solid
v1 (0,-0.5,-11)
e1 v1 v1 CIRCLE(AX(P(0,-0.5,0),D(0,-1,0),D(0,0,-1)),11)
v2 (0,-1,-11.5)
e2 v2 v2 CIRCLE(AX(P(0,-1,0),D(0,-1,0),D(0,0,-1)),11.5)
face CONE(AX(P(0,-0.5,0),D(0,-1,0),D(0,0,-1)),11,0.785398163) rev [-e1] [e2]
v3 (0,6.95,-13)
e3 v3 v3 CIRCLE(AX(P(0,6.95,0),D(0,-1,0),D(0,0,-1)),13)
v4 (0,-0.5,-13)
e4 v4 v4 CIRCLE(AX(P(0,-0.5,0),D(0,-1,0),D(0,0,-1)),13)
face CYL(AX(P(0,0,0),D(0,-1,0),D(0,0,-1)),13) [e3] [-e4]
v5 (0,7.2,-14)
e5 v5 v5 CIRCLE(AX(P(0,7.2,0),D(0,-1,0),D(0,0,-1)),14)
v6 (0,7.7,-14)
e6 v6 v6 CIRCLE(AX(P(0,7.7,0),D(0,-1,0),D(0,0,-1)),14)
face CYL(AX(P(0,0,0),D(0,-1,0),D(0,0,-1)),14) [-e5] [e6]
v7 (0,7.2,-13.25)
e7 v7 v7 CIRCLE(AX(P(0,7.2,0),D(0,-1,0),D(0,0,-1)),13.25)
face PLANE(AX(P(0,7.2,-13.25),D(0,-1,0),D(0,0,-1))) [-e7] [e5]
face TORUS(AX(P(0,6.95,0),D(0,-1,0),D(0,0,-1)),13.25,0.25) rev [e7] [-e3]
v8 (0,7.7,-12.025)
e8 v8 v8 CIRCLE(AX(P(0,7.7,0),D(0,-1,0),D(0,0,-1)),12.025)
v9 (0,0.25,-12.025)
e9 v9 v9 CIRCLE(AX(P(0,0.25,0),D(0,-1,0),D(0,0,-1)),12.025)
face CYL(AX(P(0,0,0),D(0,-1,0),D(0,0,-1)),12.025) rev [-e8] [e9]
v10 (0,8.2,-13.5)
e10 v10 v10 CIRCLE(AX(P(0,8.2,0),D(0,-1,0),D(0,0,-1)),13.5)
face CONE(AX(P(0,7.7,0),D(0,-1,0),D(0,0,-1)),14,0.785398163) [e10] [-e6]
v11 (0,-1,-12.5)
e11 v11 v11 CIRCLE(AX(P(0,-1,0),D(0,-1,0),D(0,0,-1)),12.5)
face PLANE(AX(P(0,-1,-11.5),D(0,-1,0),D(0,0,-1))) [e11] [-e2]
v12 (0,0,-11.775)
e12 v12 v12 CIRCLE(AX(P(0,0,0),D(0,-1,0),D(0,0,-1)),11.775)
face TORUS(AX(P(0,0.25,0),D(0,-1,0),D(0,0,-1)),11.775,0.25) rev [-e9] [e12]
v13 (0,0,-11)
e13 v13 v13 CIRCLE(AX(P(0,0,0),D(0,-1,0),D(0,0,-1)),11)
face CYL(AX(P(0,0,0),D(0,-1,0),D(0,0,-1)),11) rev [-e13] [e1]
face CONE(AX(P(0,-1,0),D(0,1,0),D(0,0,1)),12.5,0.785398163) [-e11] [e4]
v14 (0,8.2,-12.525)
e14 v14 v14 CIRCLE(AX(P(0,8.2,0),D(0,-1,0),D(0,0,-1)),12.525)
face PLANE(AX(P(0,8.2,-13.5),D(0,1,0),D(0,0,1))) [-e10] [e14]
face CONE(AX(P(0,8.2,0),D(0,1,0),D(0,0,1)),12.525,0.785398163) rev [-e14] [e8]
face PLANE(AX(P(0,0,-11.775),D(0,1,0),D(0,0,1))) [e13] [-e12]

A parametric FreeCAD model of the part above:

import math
import FreeCAD as App
import Part
import Sketcher
from FreeCAD import Vector
Q = App.Units.Quantity

doc = App.newDocument("Part")
params = doc.addObject("Spreadsheet::Sheet", "Params")
for row, (alias, value) in enumerate([
    ("sketch1_height", "1 mm"),
    ("sketch1_radius", "0.25 mm"),
    ("sketch1_width", "0.5 mm"),
    ("sketch1_width2", "7.45 mm"),
    ("revolution_angle", "360 deg"),
], start=1):
    params.set(f"A{row}", alias)
    params.set(f"B{row}", "=" + value)
    params.setAlias(f"B{row}", alias)

body = doc.addObject("PartDesign::Body", "Body")

sketch1 = body.newObject("Sketcher::SketchObject", "Sketch")
sketch1.AttachmentSupport = (doc.getObject("YZ_Plane"), [""])
sketch1.MapMode = "FlatFace"
sketch1.addGeometry([
    Part.LineSegment(Vector(0, -11, 0), Vector(-0.5, -11, 0)),
    Part.LineSegment(Vector(-0.5, -11, 0), Vector(-1, -11.5, 0)),
    Part.LineSegment(Vector(-1, -11.5, 0), Vector(-1, -12.5, 0)),
    Part.LineSegment(Vector(-1, -12.5, 0), Vector(-0.5, -13, 0)),
    Part.LineSegment(Vector(-0.5, -13, 0), Vector(6.95, -13, 0)),
    Part.ArcOfCircle(Part.Circle(Vector(6.95, -13.25, 0), Vector(0, 0, 1), 0.25), math.radians(0), math.radians(90)),
    Part.LineSegment(Vector(7.2, -13.25, 0), Vector(7.2, -14, 0)),
    Part.LineSegment(Vector(7.2, -14, 0), Vector(7.7, -14, 0)),
    Part.LineSegment(Vector(7.7, -14, 0), Vector(8.2, -13.5, 0)),
    Part.LineSegment(Vector(8.2, -13.5, 0), Vector(8.2, -12.525, 0)),
    Part.LineSegment(Vector(8.2, -12.525, 0), Vector(7.7, -12.025, 0)),
    Part.LineSegment(Vector(7.7, -12.025, 0), Vector(0.25, -12.025, 0)),
    Part.ArcOfCircle(Part.Circle(Vector(0.25, -11.775, 0), Vector(0, 0, 1), 0.25), math.radians(-180), math.radians(-90)),
    Part.LineSegment(Vector(0, -11.775, 0), Vector(0, -11, 0)),
], False)
sketch1.addConstraint([
    Sketcher.Constraint("Coincident", 0, 2, 1, 1),
    Sketcher.Constraint("Coincident", 1, 2, 2, 1),
    Sketcher.Constraint("Coincident", 2, 2, 3, 1),
    Sketcher.Constraint("Coincident", 3, 2, 4, 1),
    Sketcher.Constraint("Tangent", 4, 2, 5, 2),
    Sketcher.Constraint("Tangent", 5, 1, 6, 1),
    Sketcher.Constraint("Coincident", 6, 2, 7, 1),
    Sketcher.Constraint("Coincident", 7, 2, 8, 1),
    Sketcher.Constraint("Coincident", 8, 2, 9, 1),
    Sketcher.Constraint("Coincident", 9, 2, 10, 1),
    Sketcher.Constraint("Coincident", 10, 2, 11, 1),
    Sketcher.Constraint("Tangent", 11, 2, 12, 2),
    Sketcher.Constraint("Tangent", 12, 1, 13, 1),
    Sketcher.Constraint("Coincident", 13, 2, 0, 1),
    Sketcher.Constraint("Horizontal", 0),
    Sketcher.Constraint("Vertical", 2),
    Sketcher.Constraint("Horizontal", 4),
    Sketcher.Constraint("Vertical", 6),
    Sketcher.Constraint("Horizontal", 7),
    Sketcher.Constraint("Vertical", 9),
    Sketcher.Constraint("Horizontal", 11),
    Sketcher.Constraint("Vertical", 13),
    Sketcher.Constraint("Equal", 5, 12),
    Sketcher.Constraint("PointOnObject", 12, 1, -2),
    Sketcher.Constraint("Perpendicular", 1, 3),
    Sketcher.Constraint("Perpendicular", 3, 8),
    Sketcher.Constraint("Perpendicular", 8, 10),
    Sketcher.Constraint("Vertical", 0, 2, 3, 2),
    Sketcher.Constraint("Vertical", 7, 2, 10, 2),
    Sketcher.Constraint("Equal", 0, 7),
    Sketcher.Constraint("Equal", 1, 3),
    Sketcher.Constraint("Equal", 3, 8),
    Sketcher.Constraint("DistanceY", 2, 2, 2, 1, Q("1 mm")),
    Sketcher.Constraint("Radius", 5, Q("0.25 mm")),
    Sketcher.Constraint("DistanceX", 0, 2, 0, 1, Q("0.5 mm")),
    Sketcher.Constraint("DistanceY", 0, 2, -1, 1, Q("11 mm")),
    Sketcher.Constraint("DistanceX", 1, 2, -1, 1, Q("1 mm")),
    Sketcher.Constraint("DistanceY", 6, 2, -1, 1, Q("14 mm")),
    Sketcher.Constraint("DistanceX", 4, 1, 4, 2, Q("7.45 mm")),
    Sketcher.Constraint("DistanceY", 9, 1, 9, 2, Q("0.975 mm")),
])
sketch1.setExpression("Constraints[32]", "Params.sketch1_height")
sketch1.setExpression("Constraints[33]", "Params.sketch1_radius")
sketch1.setExpression("Constraints[34]", "Params.sketch1_width")
sketch1.setExpression("Constraints[38]", "Params.sketch1_width2")
revolution = body.newObject("PartDesign::Revolution", "Revolution")
revolution.Profile = sketch1
revolution.ReferenceAxis = (sketch1, ["H_Axis"])
revolution.setExpression("Angle", "Params.revolution_angle")

doc.recompute()
